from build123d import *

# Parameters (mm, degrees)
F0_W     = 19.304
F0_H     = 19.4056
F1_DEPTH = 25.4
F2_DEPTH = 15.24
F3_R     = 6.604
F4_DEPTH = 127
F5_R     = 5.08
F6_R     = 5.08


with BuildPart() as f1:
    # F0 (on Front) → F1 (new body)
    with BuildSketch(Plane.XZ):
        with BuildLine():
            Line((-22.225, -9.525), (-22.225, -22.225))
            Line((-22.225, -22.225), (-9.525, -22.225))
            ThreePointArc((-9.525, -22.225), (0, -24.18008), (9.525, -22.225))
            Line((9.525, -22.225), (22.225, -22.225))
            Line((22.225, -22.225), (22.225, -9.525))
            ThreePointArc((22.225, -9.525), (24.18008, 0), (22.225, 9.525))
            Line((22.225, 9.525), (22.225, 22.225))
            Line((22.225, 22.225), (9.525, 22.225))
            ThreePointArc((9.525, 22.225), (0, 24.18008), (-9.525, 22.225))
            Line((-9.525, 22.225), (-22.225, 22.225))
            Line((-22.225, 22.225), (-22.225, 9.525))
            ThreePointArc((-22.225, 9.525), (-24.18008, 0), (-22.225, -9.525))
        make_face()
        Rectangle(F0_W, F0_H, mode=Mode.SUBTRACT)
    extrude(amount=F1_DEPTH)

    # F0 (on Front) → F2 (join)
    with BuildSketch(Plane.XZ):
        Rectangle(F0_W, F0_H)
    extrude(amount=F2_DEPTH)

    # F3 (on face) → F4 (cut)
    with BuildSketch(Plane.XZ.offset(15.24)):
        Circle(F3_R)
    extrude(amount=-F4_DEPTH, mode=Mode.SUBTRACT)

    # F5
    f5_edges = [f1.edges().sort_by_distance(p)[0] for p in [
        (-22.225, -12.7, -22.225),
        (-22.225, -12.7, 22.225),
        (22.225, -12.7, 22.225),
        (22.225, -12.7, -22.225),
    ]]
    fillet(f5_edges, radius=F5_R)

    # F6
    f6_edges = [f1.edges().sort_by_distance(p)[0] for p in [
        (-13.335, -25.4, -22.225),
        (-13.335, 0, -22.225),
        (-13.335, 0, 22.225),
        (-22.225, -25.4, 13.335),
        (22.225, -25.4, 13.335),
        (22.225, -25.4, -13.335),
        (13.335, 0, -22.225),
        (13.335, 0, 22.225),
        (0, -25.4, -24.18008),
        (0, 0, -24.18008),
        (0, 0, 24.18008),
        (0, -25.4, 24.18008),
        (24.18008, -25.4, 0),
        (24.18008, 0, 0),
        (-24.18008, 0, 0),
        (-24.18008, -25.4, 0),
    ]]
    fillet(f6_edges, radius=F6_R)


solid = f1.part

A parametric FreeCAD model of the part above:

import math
import FreeCAD as App
import Part
import Sketcher
from FreeCAD import Vector
Q = App.Units.Quantity


def edges_at(feature, points):
    """Names of the edges that pass closest to the given points."""
    edges = feature.Shape.Edges
    near = lambda p: min(range(len(edges)), key=lambda i: edges[i].distToShape(Part.Vertex(*p))[0])
    return sorted({f"Edge{near(p) + 1}" for p in points})


def add_polygon(sketch, points):
    """Adds a closed chain of lines whose ends are joined by coincident constraints."""
    first, n = sketch.GeometryCount, len(points)
    for a, b in zip(points, points[1:] + points[:1]):
        sketch.addGeometry(Part.LineSegment(App.Vector(*a, 0), App.Vector(*b, 0)), False)
    for i in range(n):
        sketch.addConstraint(Sketcher.Constraint("Coincident", first + i, 2, first + (i + 1) % n, 1))

doc = App.newDocument("Part")
body = doc.addObject("PartDesign::Body", "Body")

# Sketch on XZ plane
sketch1 = body.newObject("Sketcher::SketchObject", "Sketch")
sketch1.AttachmentSupport = (doc.getObject("XZ_Plane"), [""])
sketch1.MapMode = "FlatFace"
sketch1.addGeometry(Part.LineSegment(Vector(-22, -10, 0), Vector(-22, -22, 0)), False)  # 0
sketch1.addGeometry(Part.LineSegment(Vector(-22, -22, 0), Vector(-10, -22, 0)), False)  # 1
sketch1.addGeometry(Part.ArcOfCircle(Part.Circle(Vector(0, 0, 0), Vector(0, 0, 1), 24), math.radians(-113), math.radians(-67)), False)  # 2
sketch1.addGeometry(Part.LineSegment(Vector(10, -22, 0), Vector(22, -22, 0)), False)  # 3
sketch1.addGeometry(Part.LineSegment(Vector(22, -22, 0), Vector(22, -10, 0)), False)  # 4
sketch1.addGeometry(Part.ArcOfCircle(Part.Circle(Vector(0, 0, 0), Vector(0, 0, 1), 24), math.radians(-23), math.radians(23)), False)  # 5
sketch1.addGeometry(Part.LineSegment(Vector(22, 10, 0), Vector(22, 22, 0)), False)  # 6
sketch1.addGeometry(Part.LineSegment(Vector(22, 22, 0), Vector(10, 22, 0)), False)  # 7
sketch1.addGeometry(Part.ArcOfCircle(Part.Circle(Vector(0, 0, 0), Vector(0, 0, 1), 24), math.radians(67), math.radians(113)), False)  # 8
sketch1.addGeometry(Part.LineSegment(Vector(-10, 22, 0), Vector(-22, 22, 0)), False)  # 9
sketch1.addGeometry(Part.LineSegment(Vector(-22, 22, 0), Vector(-22, 10, 0)), False)  # 10
sketch1.addGeometry(Part.ArcOfCircle(Part.Circle(Vector(0, 0, 0), Vector(0, 0, 1), 24), math.radians(157), math.radians(203)), False)  # 11
add_polygon(sketch1, [(10, -10), (-10, -10), (-10, 10), (10, 10)])  # lines 12-15
sketch1.addConstraint([
    Sketcher.Constraint("Coincident", 0, 2, 1, 1),
    Sketcher.Constraint("Coincident", 1, 2, 2, 1),
    Sketcher.Constraint("Coincident", 2, 2, 3, 1),
    Sketcher.Constraint("Coincident", 3, 2, 4, 1),
    Sketcher.Constraint("Coincident", 4, 2, 5, 1),
    Sketcher.Constraint("Coincident", 5, 2, 6, 1),
    Sketcher.Constraint("Coincident", 6, 2, 7, 1),
    Sketcher.Constraint("Coincident", 7, 2, 8, 1),
    Sketcher.Constraint("Coincident", 8, 2, 9, 1),
    Sketcher.Constraint("Coincident", 9, 2, 10, 1),
    Sketcher.Constraint("Coincident", 10, 2, 11, 1),
    Sketcher.Constraint("Coincident", 11, 2, 0, 1),
    Sketcher.Constraint("Vertical", 0),
    Sketcher.Constraint("Horizontal", 1),
    Sketcher.Constraint("Horizontal", 3),
    Sketcher.Constraint("Vertical", 4),
    Sketcher.Constraint("Vertical", 6),
    Sketcher.Constraint("Horizontal", 7),
    Sketcher.Constraint("Horizontal", 9),
    Sketcher.Constraint("Vertical", 10),
    Sketcher.Constraint("Horizontal", 12),
    Sketcher.Constraint("Vertical", 13),
    Sketcher.Constraint("Horizontal", 14),
    Sketcher.Constraint("Vertical", 15),
    Sketcher.Constraint("Coincident", 2, 3, -1, 1),
    Sketcher.Constraint("Coincident", 5, 3, -1, 1),
    Sketcher.Constraint("Coincident", 8, 3, -1, 1),
    Sketcher.Constraint("Coincident", 11, 3, -1, 1),
    Sketcher.Constraint("Equal", 2, 5),
    Sketcher.Constraint("Equal", 5, 8),
    Sketcher.Constraint("Equal", 8, 11),
    Sketcher.Constraint("Symmetric", 0, 2, 6, 2, -1, 1),
    Sketcher.Constraint("Symmetric", 3, 2, 9, 2, -1, 1),
    Sketcher.Constraint("Symmetric", 12, 2, 14, 2, -1, 1),
    Sketcher.Constraint("Symmetric", 0, 2, 3, 2, -2),
    Sketcher.Constraint("Equal", 9, 0),
    Sketcher.Constraint("DistanceX", 1, 1, 1, 2, Q("0.5 in")),
    Sketcher.Constraint("DistanceX", 12, 2, 12, 1, Q("0.76 in")),
    Sketcher.Constraint("DistanceY", 13, 1, 13, 2, Q("0.764 in")),
    Sketcher.Constraint("DistanceX", 1, 2, 2, 2, Q("0.75 in")),
])
pad1 = body.newObject("PartDesign::Pad", "Pad")
pad1.Profile = sketch1
pad1.Length = Q("1 in")

# Sketch on XZ plane
sketch2 = body.newObject("Sketcher::SketchObject", "Sketch001")
sketch2.AttachmentSupport = (doc.getObject("XZ_Plane"), [""])
sketch2.MapMode = "FlatFace"
add_polygon(sketch2, [(-10, 10), (-10, -10), (10, -10), (10, 10)])  # lines 0-3
sketch2.addConstraint([
    Sketcher.Constraint("Vertical", 0),
    Sketcher.Constraint("Horizontal", 1),
    Sketcher.Constraint("Vertical", 2),
    Sketcher.Constraint("Horizontal", 3),
    Sketcher.Constraint("Symmetric", 0, 2, 2, 2, -1, 1),
    Sketcher.Constraint("DistanceX", 1, 1, 1, 2, Q("0.76 in")),
    Sketcher.Constraint("DistanceY", 0, 2, 0, 1, Q("0.764 in")),
])
pad2 = body.newObject("PartDesign::Pad", "Pad001")
pad2.Profile = sketch2
pad2.Length = Q("0.6 in")

# Sketch on XZ plane
sketch3 = body.newObject("Sketcher::SketchObject", "Sketch002")
sketch3.AttachmentSupport = (doc.getObject("XZ_Plane"), [""])
sketch3.MapMode = "FlatFace"
sketch3.AttachmentOffset = App.Placement(Vector(0, 0, 0.6 * 25.4), App.Rotation())
sketch3.addGeometry(Part.Circle(Vector(0, 0, 0), Vector(0, 0, 1), 7), False)
sketch3.addConstraint([
    Sketcher.Constraint("Coincident", 0, 3, -1, 1),
    Sketcher.Constraint("Diameter", 0, Q("0.52 in")),
])
pocket1 = body.newObject("PartDesign::Pocket", "Pocket")
pocket1.Profile = sketch3
pocket1.Length = Q("5 in")
doc.recompute()

fillet = body.newObject("PartDesign::Fillet", "Fillet")
fillet.Base = (pocket1, edges_at(pocket1, [
    (-22.225, -12.7, -22.225),
    (-22.225, -12.7, 22.225),
    (22.225, -12.7, 22.225),
    (22.225, -12.7, -22.225),
]))
fillet.Radius = Q("0.2 in")
doc.recompute()

fillet2 = body.newObject("PartDesign::Fillet", "Fillet001")
fillet2.Base = (fillet, edges_at(fillet, [
    (-13.335, -25.4, -22.225),
    (-13.335, 0, -22.225),
    (-13.335, 0, 22.225),
    (-22.225, -25.4, 13.335),
    (22.225, -25.4, 13.335),
    (22.225, -25.4, -13.335),
    (13.335, 0, -22.225),
    (13.335, 0, 22.225),
    (0, -25.4, -24.18),
    (0, 0, -24.18),
    (0, 0, 24.18),
    (0, -25.4, 24.18),
    (24.18, -25.4, 0),
    (24.18, 0, 0),
    (-24.18, 0, 0),
    (-24.18, -25.4, 0),
]))
fillet2.Radius = Q("0.2 in")

doc.recompute()
